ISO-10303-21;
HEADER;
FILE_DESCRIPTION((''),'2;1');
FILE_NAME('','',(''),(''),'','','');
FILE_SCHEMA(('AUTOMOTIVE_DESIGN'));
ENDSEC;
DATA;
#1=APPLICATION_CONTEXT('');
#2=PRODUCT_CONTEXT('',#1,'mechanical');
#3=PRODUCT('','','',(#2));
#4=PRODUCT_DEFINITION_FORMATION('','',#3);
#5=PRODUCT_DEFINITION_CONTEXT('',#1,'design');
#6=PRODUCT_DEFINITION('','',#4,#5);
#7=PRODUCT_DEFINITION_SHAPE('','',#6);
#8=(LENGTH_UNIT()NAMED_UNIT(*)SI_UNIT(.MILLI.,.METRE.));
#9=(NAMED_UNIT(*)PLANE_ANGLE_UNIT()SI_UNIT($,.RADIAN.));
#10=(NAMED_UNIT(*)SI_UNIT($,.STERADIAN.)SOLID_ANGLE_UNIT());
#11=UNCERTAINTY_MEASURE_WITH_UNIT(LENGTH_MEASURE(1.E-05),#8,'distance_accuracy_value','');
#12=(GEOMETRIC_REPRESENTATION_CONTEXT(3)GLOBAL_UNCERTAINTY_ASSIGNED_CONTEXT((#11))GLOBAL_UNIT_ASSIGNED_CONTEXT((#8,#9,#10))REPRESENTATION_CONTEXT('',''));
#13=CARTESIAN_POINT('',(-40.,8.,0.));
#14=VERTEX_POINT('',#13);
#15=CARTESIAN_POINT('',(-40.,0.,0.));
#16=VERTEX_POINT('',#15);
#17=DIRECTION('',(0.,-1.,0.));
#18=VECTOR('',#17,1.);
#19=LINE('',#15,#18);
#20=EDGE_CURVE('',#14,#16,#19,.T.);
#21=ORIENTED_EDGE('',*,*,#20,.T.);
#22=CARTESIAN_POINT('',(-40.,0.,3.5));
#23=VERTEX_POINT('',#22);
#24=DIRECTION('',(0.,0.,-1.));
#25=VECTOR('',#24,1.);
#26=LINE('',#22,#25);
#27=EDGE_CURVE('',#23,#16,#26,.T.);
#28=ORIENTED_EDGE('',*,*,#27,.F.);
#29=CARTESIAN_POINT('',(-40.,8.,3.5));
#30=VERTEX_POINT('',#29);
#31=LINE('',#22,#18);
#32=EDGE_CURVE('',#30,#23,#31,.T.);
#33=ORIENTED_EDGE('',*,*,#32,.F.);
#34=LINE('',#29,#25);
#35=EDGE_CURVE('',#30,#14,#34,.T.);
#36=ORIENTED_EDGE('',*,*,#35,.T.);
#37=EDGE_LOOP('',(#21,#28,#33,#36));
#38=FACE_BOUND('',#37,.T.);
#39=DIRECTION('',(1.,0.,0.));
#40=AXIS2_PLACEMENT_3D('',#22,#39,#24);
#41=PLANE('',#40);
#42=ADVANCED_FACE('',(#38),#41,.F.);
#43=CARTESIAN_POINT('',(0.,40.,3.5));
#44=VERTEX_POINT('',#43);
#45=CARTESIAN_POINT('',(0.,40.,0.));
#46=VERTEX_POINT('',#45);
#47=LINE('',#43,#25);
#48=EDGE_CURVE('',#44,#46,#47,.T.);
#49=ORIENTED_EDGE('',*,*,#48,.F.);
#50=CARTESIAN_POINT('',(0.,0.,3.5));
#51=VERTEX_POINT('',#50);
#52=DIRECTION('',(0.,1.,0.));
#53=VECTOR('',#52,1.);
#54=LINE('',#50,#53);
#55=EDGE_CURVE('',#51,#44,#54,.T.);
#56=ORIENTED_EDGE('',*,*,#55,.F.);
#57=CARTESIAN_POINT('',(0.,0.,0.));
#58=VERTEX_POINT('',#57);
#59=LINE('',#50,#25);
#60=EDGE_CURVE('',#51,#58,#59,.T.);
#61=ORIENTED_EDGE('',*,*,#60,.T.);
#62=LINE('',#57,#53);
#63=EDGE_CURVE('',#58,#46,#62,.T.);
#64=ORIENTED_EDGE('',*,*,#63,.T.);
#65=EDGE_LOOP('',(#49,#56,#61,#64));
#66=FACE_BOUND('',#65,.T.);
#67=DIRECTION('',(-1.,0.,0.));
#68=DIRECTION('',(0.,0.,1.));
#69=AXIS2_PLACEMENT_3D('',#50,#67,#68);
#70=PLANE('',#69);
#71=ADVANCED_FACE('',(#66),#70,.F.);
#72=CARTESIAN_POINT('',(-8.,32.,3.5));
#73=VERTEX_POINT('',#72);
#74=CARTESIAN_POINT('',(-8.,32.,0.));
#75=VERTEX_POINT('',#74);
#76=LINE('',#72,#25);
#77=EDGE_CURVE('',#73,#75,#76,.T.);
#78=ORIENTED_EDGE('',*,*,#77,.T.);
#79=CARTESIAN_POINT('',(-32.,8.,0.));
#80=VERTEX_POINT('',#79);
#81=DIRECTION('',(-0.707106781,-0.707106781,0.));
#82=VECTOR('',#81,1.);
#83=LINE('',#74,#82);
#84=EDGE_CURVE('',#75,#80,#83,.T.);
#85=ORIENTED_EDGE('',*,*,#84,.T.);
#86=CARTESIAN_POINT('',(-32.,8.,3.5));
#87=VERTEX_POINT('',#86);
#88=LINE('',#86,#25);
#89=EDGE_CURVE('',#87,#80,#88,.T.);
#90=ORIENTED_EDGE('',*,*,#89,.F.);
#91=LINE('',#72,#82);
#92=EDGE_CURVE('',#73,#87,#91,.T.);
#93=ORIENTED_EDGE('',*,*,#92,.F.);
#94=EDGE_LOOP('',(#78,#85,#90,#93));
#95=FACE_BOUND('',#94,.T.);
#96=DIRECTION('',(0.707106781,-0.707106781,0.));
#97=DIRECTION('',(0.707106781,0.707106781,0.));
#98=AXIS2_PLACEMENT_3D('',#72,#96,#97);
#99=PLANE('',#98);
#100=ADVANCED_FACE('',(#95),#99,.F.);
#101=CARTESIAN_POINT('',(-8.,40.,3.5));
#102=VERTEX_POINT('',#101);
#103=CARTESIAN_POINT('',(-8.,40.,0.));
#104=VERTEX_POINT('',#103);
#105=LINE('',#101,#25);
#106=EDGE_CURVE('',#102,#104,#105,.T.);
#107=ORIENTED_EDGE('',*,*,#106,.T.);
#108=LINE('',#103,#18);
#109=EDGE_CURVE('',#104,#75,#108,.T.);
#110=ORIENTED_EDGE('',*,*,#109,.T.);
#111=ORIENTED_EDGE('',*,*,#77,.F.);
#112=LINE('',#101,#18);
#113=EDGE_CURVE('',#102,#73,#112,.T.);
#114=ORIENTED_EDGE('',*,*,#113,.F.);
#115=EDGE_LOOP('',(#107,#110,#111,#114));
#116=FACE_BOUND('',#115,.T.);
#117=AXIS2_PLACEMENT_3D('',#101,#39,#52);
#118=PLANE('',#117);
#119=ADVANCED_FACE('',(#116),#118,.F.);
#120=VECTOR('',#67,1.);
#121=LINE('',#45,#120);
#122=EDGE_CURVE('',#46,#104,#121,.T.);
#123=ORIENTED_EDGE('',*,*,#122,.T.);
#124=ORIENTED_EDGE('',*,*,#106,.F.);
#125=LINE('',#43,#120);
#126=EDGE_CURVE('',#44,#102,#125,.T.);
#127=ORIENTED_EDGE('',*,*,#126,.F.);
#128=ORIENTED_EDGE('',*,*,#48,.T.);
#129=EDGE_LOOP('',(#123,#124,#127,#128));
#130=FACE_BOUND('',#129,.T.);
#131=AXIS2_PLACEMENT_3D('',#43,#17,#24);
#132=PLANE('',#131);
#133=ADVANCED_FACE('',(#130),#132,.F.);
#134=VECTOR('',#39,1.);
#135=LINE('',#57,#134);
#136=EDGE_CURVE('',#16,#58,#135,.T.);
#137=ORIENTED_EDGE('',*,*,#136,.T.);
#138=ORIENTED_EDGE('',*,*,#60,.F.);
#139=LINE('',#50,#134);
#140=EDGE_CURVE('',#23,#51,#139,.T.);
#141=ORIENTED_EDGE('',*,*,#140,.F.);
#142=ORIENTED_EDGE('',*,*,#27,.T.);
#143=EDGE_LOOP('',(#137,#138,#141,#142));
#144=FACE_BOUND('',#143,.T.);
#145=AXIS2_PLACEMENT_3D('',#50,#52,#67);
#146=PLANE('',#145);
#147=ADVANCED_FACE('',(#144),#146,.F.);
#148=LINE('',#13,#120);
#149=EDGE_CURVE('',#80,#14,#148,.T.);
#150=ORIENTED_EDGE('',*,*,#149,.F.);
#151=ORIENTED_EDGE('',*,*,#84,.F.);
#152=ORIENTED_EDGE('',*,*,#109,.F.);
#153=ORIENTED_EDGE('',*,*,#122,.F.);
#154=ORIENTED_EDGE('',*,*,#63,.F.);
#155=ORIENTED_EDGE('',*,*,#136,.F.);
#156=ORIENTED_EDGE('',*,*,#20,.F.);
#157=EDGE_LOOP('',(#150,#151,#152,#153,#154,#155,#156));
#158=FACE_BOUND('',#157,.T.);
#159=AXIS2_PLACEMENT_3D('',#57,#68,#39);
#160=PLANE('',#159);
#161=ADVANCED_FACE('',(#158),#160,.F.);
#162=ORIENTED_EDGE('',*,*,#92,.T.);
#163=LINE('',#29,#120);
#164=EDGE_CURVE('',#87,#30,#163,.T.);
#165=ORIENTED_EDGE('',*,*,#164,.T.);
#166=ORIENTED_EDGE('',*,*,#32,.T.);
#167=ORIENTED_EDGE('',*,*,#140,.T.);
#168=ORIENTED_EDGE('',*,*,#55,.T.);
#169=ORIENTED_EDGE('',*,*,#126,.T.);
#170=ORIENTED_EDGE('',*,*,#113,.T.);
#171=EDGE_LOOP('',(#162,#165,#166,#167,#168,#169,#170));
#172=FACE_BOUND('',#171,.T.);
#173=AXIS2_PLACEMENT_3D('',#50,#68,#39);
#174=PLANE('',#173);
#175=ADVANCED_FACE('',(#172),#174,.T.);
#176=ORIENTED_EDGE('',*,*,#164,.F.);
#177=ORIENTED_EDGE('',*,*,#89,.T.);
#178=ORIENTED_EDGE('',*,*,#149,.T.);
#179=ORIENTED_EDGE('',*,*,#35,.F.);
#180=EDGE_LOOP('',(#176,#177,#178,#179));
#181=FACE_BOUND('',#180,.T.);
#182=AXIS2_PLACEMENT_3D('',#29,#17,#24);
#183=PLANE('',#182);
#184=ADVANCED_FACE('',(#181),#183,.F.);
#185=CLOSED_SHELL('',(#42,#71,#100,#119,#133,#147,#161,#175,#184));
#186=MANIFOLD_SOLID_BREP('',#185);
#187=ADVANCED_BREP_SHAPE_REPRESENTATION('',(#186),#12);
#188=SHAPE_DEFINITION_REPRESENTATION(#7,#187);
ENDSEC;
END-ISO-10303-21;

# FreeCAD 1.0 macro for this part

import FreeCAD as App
import Part
import Sketcher

doc = App.newDocument("Part")
body = doc.addObject("PartDesign::Body", "Body")

# Sketch on XY plane
sketch1 = doc.addObject("Sketcher::SketchObject", "Sketch")
body.addObject(sketch1)
sketch1.AttachmentSupport = (doc.XY_Plane, [""])
sketch1.MapMode = "FlatFace"
sketch1.addGeometry([
    Part.LineSegment(App.Vector(-40, 0, 0), App.Vector(0, 0, 0)),  # 0
    Part.LineSegment(App.Vector(0, 0, 0), App.Vector(0, 40, 0)),  # 1
    Part.LineSegment(App.Vector(0, 40, 0), App.Vector(-8, 40, 0)),  # 2
    Part.LineSegment(App.Vector(-8, 40, 0), App.Vector(-8, 32, 0)),  # 3
    Part.LineSegment(App.Vector(-8, 32, 0), App.Vector(-32, 8, 0)),  # 4
    Part.LineSegment(App.Vector(-32, 8, 0), App.Vector(-40, 8, 0)),  # 5
    Part.LineSegment(App.Vector(-40, 8, 0), App.Vector(-40, 0, 0)),  # 6
], False)
sketch1.addConstraint([
    Sketcher.Constraint("Coincident", 0, 2, 1, 1),
    Sketcher.Constraint("Coincident", 1, 2, 2, 1),
    Sketcher.Constraint("Coincident", 2, 2, 3, 1),
    Sketcher.Constraint("Coincident", 3, 2, 4, 1),
    Sketcher.Constraint("Coincident", 4, 2, 5, 1),
    Sketcher.Constraint("Coincident", 5, 2, 6, 1),
    Sketcher.Constraint("Coincident", 6, 2, 0, 1),
    Sketcher.Constraint("Horizontal", 0),
    Sketcher.Constraint("Vertical", 1),
    Sketcher.Constraint("Horizontal", 2),
    Sketcher.Constraint("Vertical", 3),
    Sketcher.Constraint("Horizontal", 5),
    Sketcher.Constraint("Vertical", 6),
    Sketcher.Constraint("Coincident", 0, 2, -1, 1),
    Sketcher.Constraint("Equal", 2, 5),
    Sketcher.Constraint("Equal", 0, 1),
    Sketcher.Constraint("Equal", 5, 3),
    Sketcher.Constraint("Equal", 3, 6),
    Sketcher.Constraint("DistanceX", 0, 1, 0, 2, 40.0),
    Sketcher.Constraint("DistanceX", 2, 2, 2, 1, 8.0),
])
pad1 = doc.addObject("PartDesign::Pad", "Pad")
body.addObject(pad1)
pad1.Profile = sketch1
pad1.Length = 3.5

doc.recompute()
